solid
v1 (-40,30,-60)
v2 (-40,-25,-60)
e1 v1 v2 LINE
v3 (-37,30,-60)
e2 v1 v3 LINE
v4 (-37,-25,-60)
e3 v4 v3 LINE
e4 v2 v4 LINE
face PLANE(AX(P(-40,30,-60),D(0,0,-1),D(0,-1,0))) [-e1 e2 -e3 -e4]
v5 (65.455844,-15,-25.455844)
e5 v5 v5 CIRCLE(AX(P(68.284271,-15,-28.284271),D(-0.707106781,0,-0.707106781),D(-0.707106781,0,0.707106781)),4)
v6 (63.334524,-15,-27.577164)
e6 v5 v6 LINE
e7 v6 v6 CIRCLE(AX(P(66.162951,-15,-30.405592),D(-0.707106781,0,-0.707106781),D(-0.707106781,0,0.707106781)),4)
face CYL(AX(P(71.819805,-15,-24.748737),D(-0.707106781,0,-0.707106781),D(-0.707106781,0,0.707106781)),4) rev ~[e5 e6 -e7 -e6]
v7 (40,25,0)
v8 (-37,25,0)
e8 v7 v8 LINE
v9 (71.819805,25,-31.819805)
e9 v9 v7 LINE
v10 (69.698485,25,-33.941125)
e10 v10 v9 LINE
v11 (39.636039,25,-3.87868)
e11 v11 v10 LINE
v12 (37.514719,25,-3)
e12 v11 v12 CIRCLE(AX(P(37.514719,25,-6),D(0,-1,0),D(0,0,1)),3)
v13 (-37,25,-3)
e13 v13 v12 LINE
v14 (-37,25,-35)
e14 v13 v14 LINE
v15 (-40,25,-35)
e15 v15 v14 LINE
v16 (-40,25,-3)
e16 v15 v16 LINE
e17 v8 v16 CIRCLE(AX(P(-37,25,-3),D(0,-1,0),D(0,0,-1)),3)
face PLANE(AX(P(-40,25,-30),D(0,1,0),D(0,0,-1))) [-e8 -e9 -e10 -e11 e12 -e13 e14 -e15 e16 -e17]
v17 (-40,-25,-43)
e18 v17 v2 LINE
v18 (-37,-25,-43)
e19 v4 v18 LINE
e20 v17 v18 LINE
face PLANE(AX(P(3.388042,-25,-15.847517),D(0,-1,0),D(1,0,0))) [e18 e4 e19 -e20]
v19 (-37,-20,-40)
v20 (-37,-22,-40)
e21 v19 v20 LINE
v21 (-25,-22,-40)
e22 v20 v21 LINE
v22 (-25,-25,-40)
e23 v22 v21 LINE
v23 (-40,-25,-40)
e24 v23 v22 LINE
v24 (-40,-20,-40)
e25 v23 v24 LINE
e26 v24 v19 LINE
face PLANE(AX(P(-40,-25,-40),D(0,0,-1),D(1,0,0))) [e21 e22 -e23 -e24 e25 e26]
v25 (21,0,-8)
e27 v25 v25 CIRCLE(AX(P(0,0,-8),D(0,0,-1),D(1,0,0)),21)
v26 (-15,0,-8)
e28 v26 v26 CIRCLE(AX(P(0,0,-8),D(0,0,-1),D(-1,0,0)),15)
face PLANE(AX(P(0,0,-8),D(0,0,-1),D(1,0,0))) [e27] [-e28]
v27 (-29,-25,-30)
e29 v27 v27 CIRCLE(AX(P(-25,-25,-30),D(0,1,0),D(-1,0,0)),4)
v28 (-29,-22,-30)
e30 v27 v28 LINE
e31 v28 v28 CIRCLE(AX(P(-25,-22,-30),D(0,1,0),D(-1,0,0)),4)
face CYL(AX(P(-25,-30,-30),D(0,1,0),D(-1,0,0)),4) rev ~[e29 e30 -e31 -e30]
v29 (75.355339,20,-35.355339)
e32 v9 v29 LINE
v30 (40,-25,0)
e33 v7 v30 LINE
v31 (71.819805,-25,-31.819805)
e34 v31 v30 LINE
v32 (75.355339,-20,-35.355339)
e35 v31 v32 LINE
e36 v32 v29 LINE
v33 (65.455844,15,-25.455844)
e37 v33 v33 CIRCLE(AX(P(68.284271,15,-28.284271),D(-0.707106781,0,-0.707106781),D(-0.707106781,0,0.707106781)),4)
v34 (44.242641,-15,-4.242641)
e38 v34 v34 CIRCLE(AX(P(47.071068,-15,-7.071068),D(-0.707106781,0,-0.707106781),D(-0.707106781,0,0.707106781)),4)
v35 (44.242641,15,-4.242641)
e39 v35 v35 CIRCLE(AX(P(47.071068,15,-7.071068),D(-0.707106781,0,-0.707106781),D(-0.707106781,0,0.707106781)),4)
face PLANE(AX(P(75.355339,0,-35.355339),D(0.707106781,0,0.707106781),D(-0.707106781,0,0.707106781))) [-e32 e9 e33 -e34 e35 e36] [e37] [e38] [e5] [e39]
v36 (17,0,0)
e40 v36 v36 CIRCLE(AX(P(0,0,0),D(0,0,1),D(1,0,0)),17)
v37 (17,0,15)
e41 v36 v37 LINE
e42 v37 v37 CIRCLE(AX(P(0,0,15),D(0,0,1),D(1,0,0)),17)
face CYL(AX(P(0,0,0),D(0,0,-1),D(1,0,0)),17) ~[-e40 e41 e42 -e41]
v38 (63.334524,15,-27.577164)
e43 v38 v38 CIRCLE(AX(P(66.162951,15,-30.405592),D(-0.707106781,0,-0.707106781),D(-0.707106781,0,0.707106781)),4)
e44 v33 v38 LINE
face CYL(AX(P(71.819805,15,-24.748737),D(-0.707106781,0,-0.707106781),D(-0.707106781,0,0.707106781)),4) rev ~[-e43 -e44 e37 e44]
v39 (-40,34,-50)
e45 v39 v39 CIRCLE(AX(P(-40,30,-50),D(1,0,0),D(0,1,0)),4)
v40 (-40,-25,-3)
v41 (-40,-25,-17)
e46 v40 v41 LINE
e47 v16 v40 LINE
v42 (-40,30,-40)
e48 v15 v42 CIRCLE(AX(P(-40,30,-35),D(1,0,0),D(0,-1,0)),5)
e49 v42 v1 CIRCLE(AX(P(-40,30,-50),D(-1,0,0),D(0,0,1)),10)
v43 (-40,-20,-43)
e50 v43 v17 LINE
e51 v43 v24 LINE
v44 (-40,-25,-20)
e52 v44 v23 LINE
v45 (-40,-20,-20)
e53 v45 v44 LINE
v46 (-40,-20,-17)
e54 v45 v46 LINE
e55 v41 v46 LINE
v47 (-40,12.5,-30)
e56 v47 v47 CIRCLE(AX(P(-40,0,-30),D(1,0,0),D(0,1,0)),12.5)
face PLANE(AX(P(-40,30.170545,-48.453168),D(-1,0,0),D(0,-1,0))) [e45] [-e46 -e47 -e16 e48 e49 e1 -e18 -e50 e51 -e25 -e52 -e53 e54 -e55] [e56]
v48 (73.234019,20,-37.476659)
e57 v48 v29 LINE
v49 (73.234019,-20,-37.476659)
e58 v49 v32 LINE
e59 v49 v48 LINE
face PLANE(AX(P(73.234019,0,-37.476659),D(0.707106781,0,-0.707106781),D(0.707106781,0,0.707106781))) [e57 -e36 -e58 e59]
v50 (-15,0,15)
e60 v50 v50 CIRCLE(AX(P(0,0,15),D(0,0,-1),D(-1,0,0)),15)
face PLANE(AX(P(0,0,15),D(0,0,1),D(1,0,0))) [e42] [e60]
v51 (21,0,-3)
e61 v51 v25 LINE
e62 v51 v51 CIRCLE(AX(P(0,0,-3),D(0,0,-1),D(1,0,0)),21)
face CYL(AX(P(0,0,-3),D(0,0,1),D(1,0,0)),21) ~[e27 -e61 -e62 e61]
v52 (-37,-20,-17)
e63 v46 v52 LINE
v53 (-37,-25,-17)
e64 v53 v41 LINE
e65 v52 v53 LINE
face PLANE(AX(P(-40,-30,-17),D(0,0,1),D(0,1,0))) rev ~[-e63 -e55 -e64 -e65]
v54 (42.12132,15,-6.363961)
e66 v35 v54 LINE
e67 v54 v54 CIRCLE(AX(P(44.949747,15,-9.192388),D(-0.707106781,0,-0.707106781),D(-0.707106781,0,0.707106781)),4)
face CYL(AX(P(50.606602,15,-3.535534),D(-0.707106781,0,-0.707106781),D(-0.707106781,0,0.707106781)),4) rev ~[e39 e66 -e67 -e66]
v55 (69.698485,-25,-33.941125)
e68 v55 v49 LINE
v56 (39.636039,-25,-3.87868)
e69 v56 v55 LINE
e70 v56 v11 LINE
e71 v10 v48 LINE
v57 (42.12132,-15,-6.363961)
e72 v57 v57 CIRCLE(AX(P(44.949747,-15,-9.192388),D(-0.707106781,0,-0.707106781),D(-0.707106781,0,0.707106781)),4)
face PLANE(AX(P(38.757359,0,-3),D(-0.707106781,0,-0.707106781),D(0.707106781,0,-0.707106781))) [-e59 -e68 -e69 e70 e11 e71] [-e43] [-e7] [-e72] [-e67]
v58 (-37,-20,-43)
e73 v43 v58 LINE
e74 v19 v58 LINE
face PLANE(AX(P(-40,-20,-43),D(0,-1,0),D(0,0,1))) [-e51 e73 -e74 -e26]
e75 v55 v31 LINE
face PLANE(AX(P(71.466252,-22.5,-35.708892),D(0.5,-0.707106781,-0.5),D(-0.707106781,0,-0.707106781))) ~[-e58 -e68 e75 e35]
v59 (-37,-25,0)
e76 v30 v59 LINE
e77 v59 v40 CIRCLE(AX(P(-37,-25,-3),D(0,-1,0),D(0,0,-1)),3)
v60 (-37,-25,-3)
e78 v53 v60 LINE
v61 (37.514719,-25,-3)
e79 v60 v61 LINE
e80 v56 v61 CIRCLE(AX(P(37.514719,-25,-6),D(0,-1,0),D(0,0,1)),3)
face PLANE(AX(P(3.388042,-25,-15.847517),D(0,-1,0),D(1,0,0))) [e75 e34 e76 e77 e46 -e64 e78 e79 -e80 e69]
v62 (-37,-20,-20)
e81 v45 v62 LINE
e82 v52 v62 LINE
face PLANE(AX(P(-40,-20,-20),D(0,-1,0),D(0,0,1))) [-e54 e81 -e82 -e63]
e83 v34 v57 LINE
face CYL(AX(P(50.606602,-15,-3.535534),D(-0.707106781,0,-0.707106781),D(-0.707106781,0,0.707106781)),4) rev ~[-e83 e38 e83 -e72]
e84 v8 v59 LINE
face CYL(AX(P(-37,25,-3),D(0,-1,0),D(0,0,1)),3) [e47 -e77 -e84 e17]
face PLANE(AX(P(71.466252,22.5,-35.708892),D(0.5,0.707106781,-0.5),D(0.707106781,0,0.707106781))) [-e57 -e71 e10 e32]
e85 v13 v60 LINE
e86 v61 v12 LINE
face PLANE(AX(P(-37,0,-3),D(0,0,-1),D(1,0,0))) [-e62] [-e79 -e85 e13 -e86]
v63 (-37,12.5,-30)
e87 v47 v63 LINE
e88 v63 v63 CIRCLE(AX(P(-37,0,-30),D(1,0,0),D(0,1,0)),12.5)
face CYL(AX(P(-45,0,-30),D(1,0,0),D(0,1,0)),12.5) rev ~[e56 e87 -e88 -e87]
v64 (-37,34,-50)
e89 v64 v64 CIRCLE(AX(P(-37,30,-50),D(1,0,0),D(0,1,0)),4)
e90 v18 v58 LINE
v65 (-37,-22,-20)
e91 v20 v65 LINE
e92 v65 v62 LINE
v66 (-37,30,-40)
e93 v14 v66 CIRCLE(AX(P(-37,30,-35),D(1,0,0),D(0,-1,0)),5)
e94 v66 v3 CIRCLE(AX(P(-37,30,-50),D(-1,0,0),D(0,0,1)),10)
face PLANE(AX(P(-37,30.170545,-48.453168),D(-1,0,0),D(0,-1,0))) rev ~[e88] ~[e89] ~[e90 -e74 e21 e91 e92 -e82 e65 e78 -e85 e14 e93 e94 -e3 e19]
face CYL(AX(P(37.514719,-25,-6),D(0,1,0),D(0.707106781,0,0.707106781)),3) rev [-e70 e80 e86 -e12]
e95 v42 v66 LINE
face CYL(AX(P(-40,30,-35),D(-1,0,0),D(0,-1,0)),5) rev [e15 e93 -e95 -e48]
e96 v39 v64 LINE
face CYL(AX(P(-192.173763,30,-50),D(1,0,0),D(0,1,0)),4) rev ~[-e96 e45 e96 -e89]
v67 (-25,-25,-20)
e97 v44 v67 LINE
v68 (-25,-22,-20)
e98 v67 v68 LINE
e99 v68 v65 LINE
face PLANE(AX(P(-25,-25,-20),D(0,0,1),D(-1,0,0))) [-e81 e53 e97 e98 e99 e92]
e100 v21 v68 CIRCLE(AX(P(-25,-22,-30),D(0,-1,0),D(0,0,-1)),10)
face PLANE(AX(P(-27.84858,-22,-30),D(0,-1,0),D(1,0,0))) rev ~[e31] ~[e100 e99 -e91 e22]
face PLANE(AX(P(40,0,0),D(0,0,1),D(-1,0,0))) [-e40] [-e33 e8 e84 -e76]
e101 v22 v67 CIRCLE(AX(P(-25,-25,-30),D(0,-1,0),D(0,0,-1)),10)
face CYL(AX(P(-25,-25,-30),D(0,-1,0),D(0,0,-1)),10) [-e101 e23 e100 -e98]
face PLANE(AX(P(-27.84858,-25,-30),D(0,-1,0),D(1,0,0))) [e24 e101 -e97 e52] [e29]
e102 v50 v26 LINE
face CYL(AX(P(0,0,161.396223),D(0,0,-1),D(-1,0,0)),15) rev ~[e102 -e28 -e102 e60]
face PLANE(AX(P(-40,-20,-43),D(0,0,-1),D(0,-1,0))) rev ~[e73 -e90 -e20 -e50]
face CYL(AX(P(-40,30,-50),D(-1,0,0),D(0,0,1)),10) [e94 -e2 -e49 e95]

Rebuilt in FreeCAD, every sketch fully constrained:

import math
import FreeCAD as App
import Part
import Sketcher
from FreeCAD import Vector
Q = App.Units.Quantity


def edges_at(feature, points):
    """Names of the edges that pass closest to the given points."""
    edges = feature.Shape.Edges
    near = lambda p: min(range(len(edges)), key=lambda i: edges[i].distToShape(Part.Vertex(*p))[0])
    return sorted({f"Edge{near(p) + 1}" for p in points})

doc = App.newDocument("Part")
body = doc.addObject("PartDesign::Body", "Body")

# Sketch on XZ plane
sketch1 = body.newObject("Sketcher::SketchObject", "Sketch")
sketch1.AttachmentSupport = (doc.getObject("XZ_Plane"), [""])
sketch1.MapMode = "FlatFace"
sketch1.addGeometry([
    Part.LineSegment(Vector(75.4, -35.4, 0), Vector(40, 0, 0)),  # 0
    Part.LineSegment(Vector(40, 0, 0), Vector(-40, 0, 0)),  # 1
    Part.LineSegment(Vector(-40, 0, 0), Vector(-40, -60, 0)),  # 2
    Part.LineSegment(Vector(-40, -60, 0), Vector(-37, -60, 0)),  # 3
    Part.LineSegment(Vector(-37, -60, 0), Vector(-37, -3, 0)),  # 4
    Part.LineSegment(Vector(-37, -3, 0), Vector(38.8, -3, 0)),  # 5
    Part.LineSegment(Vector(38.8, -3, 0), Vector(73.2, -37.5, 0)),  # 6
    Part.LineSegment(Vector(73.2, -37.5, 0), Vector(75.4, -35.4, 0)),  # 7
], False)
sketch1.addConstraint([
    Sketcher.Constraint("Coincident", 0, 2, 1, 1),
    Sketcher.Constraint("Coincident", 1, 2, 2, 1),
    Sketcher.Constraint("Coincident", 2, 2, 3, 1),
    Sketcher.Constraint("Coincident", 3, 2, 4, 1),
    Sketcher.Constraint("Coincident", 4, 2, 5, 1),
    Sketcher.Constraint("Coincident", 5, 2, 6, 1),
    Sketcher.Constraint("Coincident", 6, 2, 7, 1),
    Sketcher.Constraint("Coincident", 7, 2, 0, 1),
    Sketcher.Constraint("Horizontal", 1),
    Sketcher.Constraint("Vertical", 2),
    Sketcher.Constraint("Horizontal", 3),
    Sketcher.Constraint("Vertical", 4),
    Sketcher.Constraint("Horizontal", 5),
    Sketcher.Constraint("Symmetric", 0, 2, 1, 2, -1, 1),
    Sketcher.Constraint("Parallel", 0, 6),
    Sketcher.Constraint("Perpendicular", 6, 7),
    Sketcher.Constraint("DistanceX", 1, 2, 1, 1, 80.0),
    Sketcher.Constraint("DistanceX", 3, 1, 3, 2, 3.0),
    Sketcher.Constraint("DistanceY", 2, 2, 2, 1, 60.0),
    Sketcher.Constraint("DistanceY", 4, 1, 4, 2, 57.0),
    Sketcher.Constraint("Angle", 0, Q("135 deg")),
    Sketcher.Constraint("Distance", 0, 50.0),
    Sketcher.Constraint("Distance", 7, 3.0),
])
pad1 = body.newObject("PartDesign::Pad", "Pad")
pad1.Profile = sketch1
pad1.Type = "TwoLengths"
pad1.Length = 25
pad1.Length2 = 25

# Sketch on XY plane
sketch2 = body.newObject("Sketcher::SketchObject", "Sketch001")
sketch2.AttachmentSupport = (doc.getObject("XY_Plane"), [""])
sketch2.MapMode = "FlatFace"
sketch2.addGeometry(Part.Circle(Vector(0, 0, 0), Vector(0, 0, 1), 17), False)
sketch2.addConstraint([
    Sketcher.Constraint("Coincident", 0, 3, -1, 1),
    Sketcher.Constraint("Diameter", 0, 34.0),
])
pad2 = body.newObject("PartDesign::Pad", "Pad001")
pad2.Profile = sketch2
pad2.Length = 15

# Sketch on XY plane
sketch3 = body.newObject("Sketcher::SketchObject", "Sketch002")
sketch3.AttachmentSupport = (doc.getObject("XY_Plane"), [""])
sketch3.MapMode = "FlatFace"
sketch3.AttachmentOffset = App.Placement(Vector(0, 0, -3), App.Rotation())
sketch3.addGeometry(Part.Circle(Vector(0, 0, 0), Vector(0, 0, 1), 21), False)
sketch3.addConstraint([
    Sketcher.Constraint("Coincident", 0, 3, -1, 1),
    Sketcher.Constraint("Diameter", 0, 42.0),
])
pad3 = body.newObject("PartDesign::Pad", "Pad002")
pad3.Profile = sketch3
pad3.Length = 5
pad3.Reversed = True

# Sketch on XY plane
sketch4 = body.newObject("Sketcher::SketchObject", "Sketch003")
sketch4.AttachmentSupport = (doc.getObject("XY_Plane"), [""])
sketch4.MapMode = "FlatFace"
sketch4.AttachmentOffset = App.Placement(Vector(0, 0, 15), App.Rotation())
sketch4.addGeometry(Part.Circle(Vector(0, 0, 0), Vector(0, 0, 1), 15), False)
sketch4.addConstraint([
    Sketcher.Constraint("Coincident", 0, 3, -1, 1),
    Sketcher.Constraint("Diameter", 0, 30.0),
])
doc.recompute()
hole = body.newObject("PartDesign::Hole", "Hole")
hole.Profile = sketch4
hole.ThreadType = "None"
hole.Diameter = 30
hole.DepthType = "ThroughAll"

# Sketch on YZ plane
sketch5 = body.newObject("Sketcher::SketchObject", "Sketch004")
sketch5.AttachmentSupport = (doc.getObject("YZ_Plane"), [""])
sketch5.MapMode = "FlatFace"
sketch5.AttachmentOffset = App.Placement(Vector(0, 0, -40), App.Rotation())
sketch5.addGeometry([
    Part.LineSegment(Vector(-30, -20, 0), Vector(-30, -17, 0)),  # 0
    Part.LineSegment(Vector(-30, -17, 0), Vector(-20, -17, 0)),  # 1
    Part.LineSegment(Vector(-20, -17, 0), Vector(-20, -20, 0)),  # 2
    Part.LineSegment(Vector(-20, -20, 0), Vector(-30, -20, 0)),  # 3
    Part.LineSegment(Vector(-30, -43, 0), Vector(-30, -40, 0)),  # 4
    Part.LineSegment(Vector(-30, -40, 0), Vector(-20, -40, 0)),  # 5
    Part.LineSegment(Vector(-20, -40, 0), Vector(-20, -43, 0)),  # 6
    Part.LineSegment(Vector(-20, -43, 0), Vector(-30, -43, 0)),  # 7
], False)
sketch5.addConstraint([
    Sketcher.Constraint("Coincident", 0, 2, 1, 1),
    Sketcher.Constraint("Coincident", 1, 2, 2, 1),
    Sketcher.Constraint("Coincident", 2, 2, 3, 1),
    Sketcher.Constraint("Coincident", 3, 2, 0, 1),
    Sketcher.Constraint("Coincident", 4, 2, 5, 1),
    Sketcher.Constraint("Coincident", 5, 2, 6, 1),
    Sketcher.Constraint("Coincident", 6, 2, 7, 1),
    Sketcher.Constraint("Coincident", 7, 2, 4, 1),
    Sketcher.Constraint("Vertical", 0),
    Sketcher.Constraint("Horizontal", 1),
    Sketcher.Constraint("Vertical", 2),
    Sketcher.Constraint("Horizontal", 3),
    Sketcher.Constraint("Vertical", 4),
    Sketcher.Constraint("Horizontal", 5),
    Sketcher.Constraint("Vertical", 6),
    Sketcher.Constraint("Horizontal", 7),
    Sketcher.Constraint("Vertical", 3, 2, 4, 2),
    Sketcher.Constraint("Vertical", 2, 2, 5, 2),
    Sketcher.Constraint("Equal", 2, 4),
    Sketcher.Constraint("DistanceX", 1, 1, 1, 2, 10.0),
    Sketcher.Constraint("DistanceY", 0, 1, 0, 2, 3.0),
    Sketcher.Constraint("DistanceX", 0, 2, -1, 1, 30.0),
    Sketcher.Constraint("DistanceY", 0, 2, -1, 1, 17.0),
    Sketcher.Constraint("DistanceY", 4, 2, -1, 1, 40.0),
])
pocket1 = body.newObject("PartDesign::Pocket", "Pocket")
pocket1.Profile = sketch5
pocket1.Length = 5
pocket1.Reversed = True

# Sketch on YZ plane
sketch6 = body.newObject("Sketcher::SketchObject", "Sketch005")
sketch6.AttachmentSupport = (doc.getObject("YZ_Plane"), [""])
sketch6.MapMode = "FlatFace"
sketch6.AttachmentOffset = App.Placement(Vector(0, 0, -40), App.Rotation())
sketch6.addGeometry([
    Part.ArcOfCircle(Part.Circle(Vector(30, -35, 0), Vector(0, 0, 1), 5), math.radians(180), math.radians(270)),  # 0
    Part.ArcOfCircle(Part.Circle(Vector(30, -50, 0), Vector(0, 0, 1), 10), math.radians(-90), math.radians(90)),  # 1
    Part.LineSegment(Vector(30, -60, 0), Vector(0, -60, 0)),  # 2
    Part.LineSegment(Vector(0, -60, 0), Vector(0, -30, 0)),  # 3
    Part.LineSegment(Vector(0, -30, 0), Vector(25, -30, 0)),  # 4
    Part.LineSegment(Vector(25, -30, 0), Vector(25, -35, 0)),  # 5
], False)
sketch6.addConstraint([
    Sketcher.Constraint("Tangent", 0, 2, 1, 2),
    Sketcher.Constraint("Tangent", 1, 1, 2, 1),
    Sketcher.Constraint("Coincident", 2, 2, 3, 1),
    Sketcher.Constraint("Coincident", 3, 2, 4, 1),
    Sketcher.Constraint("Coincident", 4, 2, 5, 1),
    Sketcher.Constraint("Tangent", 5, 2, 0, 1),
    Sketcher.Constraint("Horizontal", 2),
    Sketcher.Constraint("Vertical", 3),
    Sketcher.Constraint("Horizontal", 4),
    Sketcher.Constraint("Vertical", 5),
    Sketcher.Constraint("PointOnObject", 2, 2, -2),
    Sketcher.Constraint("Vertical", 0, 3, 1, 3),
    Sketcher.Constraint("Equal", 2, 3),
    Sketcher.Constraint("Radius", 0, 5.0),
    Sketcher.Constraint("Radius", 1, 10.0),
    Sketcher.Constraint("DistanceX", 2, 2, 2, 1, 30.0),
    Sketcher.Constraint("DistanceY", 0, 3, -1, 1, 35.0),
])
pad4 = body.newObject("PartDesign::Pad", "Pad003")
pad4.Profile = sketch6
pad4.Length = 3

# Sketch on YZ plane
sketch7 = body.newObject("Sketcher::SketchObject", "Sketch006")
sketch7.AttachmentSupport = (doc.getObject("YZ_Plane"), [""])
sketch7.MapMode = "FlatFace"
sketch7.AttachmentOffset = App.Placement(Vector(0, 0, -40), App.Rotation())
sketch7.addGeometry(Part.Circle(Vector(0, -30, 0), Vector(0, 0, 1), 12), False)
sketch7.addConstraint([
    Sketcher.Constraint("PointOnObject", 0, 3, -2),
    Sketcher.Constraint("Diameter", 0, 25.0),
    Sketcher.Constraint("DistanceY", 0, 3, -1, 1, 30.0),
])
doc.recompute()
hole2 = body.newObject("PartDesign::Hole", "Hole001")
hole2.Profile = sketch7
hole2.ThreadType = "None"
hole2.Diameter = 25
hole2.DepthType = "Dimension"
hole2.Depth = 5
hole2.DrillPoint = "Angled"
hole2.DrillPointAngle = 118
hole2.Reversed = True

# Sketch on YZ plane
sketch8 = body.newObject("Sketcher::SketchObject", "Sketch007")
sketch8.AttachmentSupport = (doc.getObject("YZ_Plane"), [""])
sketch8.MapMode = "FlatFace"
sketch8.AttachmentOffset = App.Placement(Vector(0, 0, -40), App.Rotation())
sketch8.addGeometry(Part.Circle(Vector(30, -50, 0), Vector(0, 0, 1), 4), False)
sketch8.addConstraint([
    Sketcher.Constraint("Diameter", 0, 8.0),
    Sketcher.Constraint("DistanceX", -1, 1, 0, 3, 30.0),
    Sketcher.Constraint("DistanceY", 0, 3, -1, 1, 50.0),
])
doc.recompute()
hole3 = body.newObject("PartDesign::Hole", "Hole002")
hole3.Profile = sketch8
hole3.ThreadType = "None"
hole3.Diameter = 8
hole3.DepthType = "ThroughAll"
hole3.Reversed = True

# Sketch on XZ plane
sketch9 = body.newObject("Sketcher::SketchObject", "Sketch008")
sketch9.AttachmentSupport = (doc.getObject("XZ_Plane"), [""])
sketch9.MapMode = "FlatFace"
sketch9.AttachmentOffset = App.Placement(Vector(0, 0, 25), App.Rotation())
sketch9.addGeometry([
    Part.LineSegment(Vector(-25, -20, 0), Vector(-40, -20, 0)),
    Part.LineSegment(Vector(-40, -20, 0), Vector(-40, -40, 0)),
    Part.LineSegment(Vector(-40, -40, 0), Vector(-25, -40, 0)),
    Part.ArcOfCircle(Part.Circle(Vector(-25, -30, 0), Vector(0, 0, 1), 10), math.radians(-90), math.radians(90)),
], False)
sketch9.addConstraint([
    Sketcher.Constraint("Coincident", 0, 2, 1, 1),
    Sketcher.Constraint("Coincident", 1, 2, 2, 1),
    Sketcher.Constraint("Tangent", 2, 2, 3, 1),
    Sketcher.Constraint("Tangent", 3, 2, 0, 1),
    Sketcher.Constraint("Horizontal", 0),
    Sketcher.Constraint("Vertical", 1),
    Sketcher.Constraint("Horizontal", 2),
    Sketcher.Constraint("Radius", 3, 10.0),
    Sketcher.Constraint("DistanceX", 0, 2, 0, 1, 15.0),
    Sketcher.Constraint("DistanceX", 3, 3, -1, 1, 25.0),
    Sketcher.Constraint("DistanceY", 3, 3, -1, 1, 30.0),
])
pad5 = body.newObject("PartDesign::Pad", "Pad004")
pad5.Profile = sketch9
pad5.Length = 3
pad5.Reversed = True

# Sketch on XZ plane
sketch10 = body.newObject("Sketcher::SketchObject", "Sketch009")
sketch10.AttachmentSupport = (doc.getObject("XZ_Plane"), [""])
sketch10.MapMode = "FlatFace"
sketch10.AttachmentOffset = App.Placement(Vector(0, 0, 25), App.Rotation())
sketch10.addGeometry(Part.Circle(Vector(-25, -30, 0), Vector(0, 0, 1), 4), False)
sketch10.addConstraint([
    Sketcher.Constraint("Diameter", 0, 8.0),
    Sketcher.Constraint("DistanceX", 0, 3, -1, 1, 25.0),
    Sketcher.Constraint("DistanceY", 0, 3, -1, 1, 30.0),
])
doc.recompute()
hole4 = body.newObject("PartDesign::Hole", "Hole003")
hole4.Profile = sketch10
hole4.ThreadType = "None"
hole4.Diameter = 8
hole4.DepthType = "Dimension"
hole4.Depth = 5
hole4.DrillPoint = "Angled"
hole4.DrillPointAngle = 118

# Sketch on an angled plane
sketch11 = body.newObject("Sketcher::SketchObject", "Sketch010")
sketch11.Placement = App.Placement(Vector(20, 0, 20), App.Rotation(Vector(0.707106781, 0, -0.707106781), Vector(0, 0.999999999, 0), Vector(0.707106781, 0, 0.707106781), "ZXY"))
sketch11.addGeometry([
    Part.Circle(Vector(38.3, -15, 0), Vector(0, 0, 1), 4),
    Part.Circle(Vector(38.3, 15, 0), Vector(0, 0, 1), 4),
    Part.Circle(Vector(68.3, -15, 0), Vector(0, 0, 1), 4),
    Part.Circle(Vector(68.3, 15, 0), Vector(0, 0, 1), 4),
], False)
sketch11.addConstraint([
    Sketcher.Constraint("Equal", 0, 1),
    Sketcher.Constraint("Equal", 1, 2),
    Sketcher.Constraint("Equal", 2, 3),
    Sketcher.Constraint("Symmetric", 0, 3, 1, 3, -1),
    Sketcher.Constraint("Symmetric", 2, 3, 3, 3, -1),
    Sketcher.Constraint("Horizontal", 0, 3, 2, 3),
    Sketcher.Constraint("Diameter", 0, 8.0),
    Sketcher.Constraint("DistanceY", 0, 3, -1, 1, 15.0),
    Sketcher.Constraint("DistanceX", 0, 3, 2, 3, 30.0),
    Sketcher.Constraint("DistanceX", -1, 1, 0, 3, 38.284271),
])
doc.recompute()
hole5 = body.newObject("PartDesign::Hole", "Hole004")
hole5.Profile = sketch11
hole5.ThreadType = "None"
hole5.Diameter = 8
hole5.DepthType = "Dimension"
hole5.Depth = 5
hole5.DrillPoint = "Angled"
hole5.DrillPointAngle = 118
doc.recompute()

chamfer = body.newObject("PartDesign::Chamfer", "Chamfer")
chamfer.Base = (hole5, edges_at(hole5, [(74.295, 25, -36.416), (74.295, -25, -36.416)]))
chamfer.Size = 5
doc.recompute()

fillet = body.newObject("PartDesign::Fillet", "Fillet")
fillet.Base = (chamfer, edges_at(chamfer, [(-40, 0, 0), (38.757, 0, -3)]))
fillet.Radius = 3

doc.recompute()
